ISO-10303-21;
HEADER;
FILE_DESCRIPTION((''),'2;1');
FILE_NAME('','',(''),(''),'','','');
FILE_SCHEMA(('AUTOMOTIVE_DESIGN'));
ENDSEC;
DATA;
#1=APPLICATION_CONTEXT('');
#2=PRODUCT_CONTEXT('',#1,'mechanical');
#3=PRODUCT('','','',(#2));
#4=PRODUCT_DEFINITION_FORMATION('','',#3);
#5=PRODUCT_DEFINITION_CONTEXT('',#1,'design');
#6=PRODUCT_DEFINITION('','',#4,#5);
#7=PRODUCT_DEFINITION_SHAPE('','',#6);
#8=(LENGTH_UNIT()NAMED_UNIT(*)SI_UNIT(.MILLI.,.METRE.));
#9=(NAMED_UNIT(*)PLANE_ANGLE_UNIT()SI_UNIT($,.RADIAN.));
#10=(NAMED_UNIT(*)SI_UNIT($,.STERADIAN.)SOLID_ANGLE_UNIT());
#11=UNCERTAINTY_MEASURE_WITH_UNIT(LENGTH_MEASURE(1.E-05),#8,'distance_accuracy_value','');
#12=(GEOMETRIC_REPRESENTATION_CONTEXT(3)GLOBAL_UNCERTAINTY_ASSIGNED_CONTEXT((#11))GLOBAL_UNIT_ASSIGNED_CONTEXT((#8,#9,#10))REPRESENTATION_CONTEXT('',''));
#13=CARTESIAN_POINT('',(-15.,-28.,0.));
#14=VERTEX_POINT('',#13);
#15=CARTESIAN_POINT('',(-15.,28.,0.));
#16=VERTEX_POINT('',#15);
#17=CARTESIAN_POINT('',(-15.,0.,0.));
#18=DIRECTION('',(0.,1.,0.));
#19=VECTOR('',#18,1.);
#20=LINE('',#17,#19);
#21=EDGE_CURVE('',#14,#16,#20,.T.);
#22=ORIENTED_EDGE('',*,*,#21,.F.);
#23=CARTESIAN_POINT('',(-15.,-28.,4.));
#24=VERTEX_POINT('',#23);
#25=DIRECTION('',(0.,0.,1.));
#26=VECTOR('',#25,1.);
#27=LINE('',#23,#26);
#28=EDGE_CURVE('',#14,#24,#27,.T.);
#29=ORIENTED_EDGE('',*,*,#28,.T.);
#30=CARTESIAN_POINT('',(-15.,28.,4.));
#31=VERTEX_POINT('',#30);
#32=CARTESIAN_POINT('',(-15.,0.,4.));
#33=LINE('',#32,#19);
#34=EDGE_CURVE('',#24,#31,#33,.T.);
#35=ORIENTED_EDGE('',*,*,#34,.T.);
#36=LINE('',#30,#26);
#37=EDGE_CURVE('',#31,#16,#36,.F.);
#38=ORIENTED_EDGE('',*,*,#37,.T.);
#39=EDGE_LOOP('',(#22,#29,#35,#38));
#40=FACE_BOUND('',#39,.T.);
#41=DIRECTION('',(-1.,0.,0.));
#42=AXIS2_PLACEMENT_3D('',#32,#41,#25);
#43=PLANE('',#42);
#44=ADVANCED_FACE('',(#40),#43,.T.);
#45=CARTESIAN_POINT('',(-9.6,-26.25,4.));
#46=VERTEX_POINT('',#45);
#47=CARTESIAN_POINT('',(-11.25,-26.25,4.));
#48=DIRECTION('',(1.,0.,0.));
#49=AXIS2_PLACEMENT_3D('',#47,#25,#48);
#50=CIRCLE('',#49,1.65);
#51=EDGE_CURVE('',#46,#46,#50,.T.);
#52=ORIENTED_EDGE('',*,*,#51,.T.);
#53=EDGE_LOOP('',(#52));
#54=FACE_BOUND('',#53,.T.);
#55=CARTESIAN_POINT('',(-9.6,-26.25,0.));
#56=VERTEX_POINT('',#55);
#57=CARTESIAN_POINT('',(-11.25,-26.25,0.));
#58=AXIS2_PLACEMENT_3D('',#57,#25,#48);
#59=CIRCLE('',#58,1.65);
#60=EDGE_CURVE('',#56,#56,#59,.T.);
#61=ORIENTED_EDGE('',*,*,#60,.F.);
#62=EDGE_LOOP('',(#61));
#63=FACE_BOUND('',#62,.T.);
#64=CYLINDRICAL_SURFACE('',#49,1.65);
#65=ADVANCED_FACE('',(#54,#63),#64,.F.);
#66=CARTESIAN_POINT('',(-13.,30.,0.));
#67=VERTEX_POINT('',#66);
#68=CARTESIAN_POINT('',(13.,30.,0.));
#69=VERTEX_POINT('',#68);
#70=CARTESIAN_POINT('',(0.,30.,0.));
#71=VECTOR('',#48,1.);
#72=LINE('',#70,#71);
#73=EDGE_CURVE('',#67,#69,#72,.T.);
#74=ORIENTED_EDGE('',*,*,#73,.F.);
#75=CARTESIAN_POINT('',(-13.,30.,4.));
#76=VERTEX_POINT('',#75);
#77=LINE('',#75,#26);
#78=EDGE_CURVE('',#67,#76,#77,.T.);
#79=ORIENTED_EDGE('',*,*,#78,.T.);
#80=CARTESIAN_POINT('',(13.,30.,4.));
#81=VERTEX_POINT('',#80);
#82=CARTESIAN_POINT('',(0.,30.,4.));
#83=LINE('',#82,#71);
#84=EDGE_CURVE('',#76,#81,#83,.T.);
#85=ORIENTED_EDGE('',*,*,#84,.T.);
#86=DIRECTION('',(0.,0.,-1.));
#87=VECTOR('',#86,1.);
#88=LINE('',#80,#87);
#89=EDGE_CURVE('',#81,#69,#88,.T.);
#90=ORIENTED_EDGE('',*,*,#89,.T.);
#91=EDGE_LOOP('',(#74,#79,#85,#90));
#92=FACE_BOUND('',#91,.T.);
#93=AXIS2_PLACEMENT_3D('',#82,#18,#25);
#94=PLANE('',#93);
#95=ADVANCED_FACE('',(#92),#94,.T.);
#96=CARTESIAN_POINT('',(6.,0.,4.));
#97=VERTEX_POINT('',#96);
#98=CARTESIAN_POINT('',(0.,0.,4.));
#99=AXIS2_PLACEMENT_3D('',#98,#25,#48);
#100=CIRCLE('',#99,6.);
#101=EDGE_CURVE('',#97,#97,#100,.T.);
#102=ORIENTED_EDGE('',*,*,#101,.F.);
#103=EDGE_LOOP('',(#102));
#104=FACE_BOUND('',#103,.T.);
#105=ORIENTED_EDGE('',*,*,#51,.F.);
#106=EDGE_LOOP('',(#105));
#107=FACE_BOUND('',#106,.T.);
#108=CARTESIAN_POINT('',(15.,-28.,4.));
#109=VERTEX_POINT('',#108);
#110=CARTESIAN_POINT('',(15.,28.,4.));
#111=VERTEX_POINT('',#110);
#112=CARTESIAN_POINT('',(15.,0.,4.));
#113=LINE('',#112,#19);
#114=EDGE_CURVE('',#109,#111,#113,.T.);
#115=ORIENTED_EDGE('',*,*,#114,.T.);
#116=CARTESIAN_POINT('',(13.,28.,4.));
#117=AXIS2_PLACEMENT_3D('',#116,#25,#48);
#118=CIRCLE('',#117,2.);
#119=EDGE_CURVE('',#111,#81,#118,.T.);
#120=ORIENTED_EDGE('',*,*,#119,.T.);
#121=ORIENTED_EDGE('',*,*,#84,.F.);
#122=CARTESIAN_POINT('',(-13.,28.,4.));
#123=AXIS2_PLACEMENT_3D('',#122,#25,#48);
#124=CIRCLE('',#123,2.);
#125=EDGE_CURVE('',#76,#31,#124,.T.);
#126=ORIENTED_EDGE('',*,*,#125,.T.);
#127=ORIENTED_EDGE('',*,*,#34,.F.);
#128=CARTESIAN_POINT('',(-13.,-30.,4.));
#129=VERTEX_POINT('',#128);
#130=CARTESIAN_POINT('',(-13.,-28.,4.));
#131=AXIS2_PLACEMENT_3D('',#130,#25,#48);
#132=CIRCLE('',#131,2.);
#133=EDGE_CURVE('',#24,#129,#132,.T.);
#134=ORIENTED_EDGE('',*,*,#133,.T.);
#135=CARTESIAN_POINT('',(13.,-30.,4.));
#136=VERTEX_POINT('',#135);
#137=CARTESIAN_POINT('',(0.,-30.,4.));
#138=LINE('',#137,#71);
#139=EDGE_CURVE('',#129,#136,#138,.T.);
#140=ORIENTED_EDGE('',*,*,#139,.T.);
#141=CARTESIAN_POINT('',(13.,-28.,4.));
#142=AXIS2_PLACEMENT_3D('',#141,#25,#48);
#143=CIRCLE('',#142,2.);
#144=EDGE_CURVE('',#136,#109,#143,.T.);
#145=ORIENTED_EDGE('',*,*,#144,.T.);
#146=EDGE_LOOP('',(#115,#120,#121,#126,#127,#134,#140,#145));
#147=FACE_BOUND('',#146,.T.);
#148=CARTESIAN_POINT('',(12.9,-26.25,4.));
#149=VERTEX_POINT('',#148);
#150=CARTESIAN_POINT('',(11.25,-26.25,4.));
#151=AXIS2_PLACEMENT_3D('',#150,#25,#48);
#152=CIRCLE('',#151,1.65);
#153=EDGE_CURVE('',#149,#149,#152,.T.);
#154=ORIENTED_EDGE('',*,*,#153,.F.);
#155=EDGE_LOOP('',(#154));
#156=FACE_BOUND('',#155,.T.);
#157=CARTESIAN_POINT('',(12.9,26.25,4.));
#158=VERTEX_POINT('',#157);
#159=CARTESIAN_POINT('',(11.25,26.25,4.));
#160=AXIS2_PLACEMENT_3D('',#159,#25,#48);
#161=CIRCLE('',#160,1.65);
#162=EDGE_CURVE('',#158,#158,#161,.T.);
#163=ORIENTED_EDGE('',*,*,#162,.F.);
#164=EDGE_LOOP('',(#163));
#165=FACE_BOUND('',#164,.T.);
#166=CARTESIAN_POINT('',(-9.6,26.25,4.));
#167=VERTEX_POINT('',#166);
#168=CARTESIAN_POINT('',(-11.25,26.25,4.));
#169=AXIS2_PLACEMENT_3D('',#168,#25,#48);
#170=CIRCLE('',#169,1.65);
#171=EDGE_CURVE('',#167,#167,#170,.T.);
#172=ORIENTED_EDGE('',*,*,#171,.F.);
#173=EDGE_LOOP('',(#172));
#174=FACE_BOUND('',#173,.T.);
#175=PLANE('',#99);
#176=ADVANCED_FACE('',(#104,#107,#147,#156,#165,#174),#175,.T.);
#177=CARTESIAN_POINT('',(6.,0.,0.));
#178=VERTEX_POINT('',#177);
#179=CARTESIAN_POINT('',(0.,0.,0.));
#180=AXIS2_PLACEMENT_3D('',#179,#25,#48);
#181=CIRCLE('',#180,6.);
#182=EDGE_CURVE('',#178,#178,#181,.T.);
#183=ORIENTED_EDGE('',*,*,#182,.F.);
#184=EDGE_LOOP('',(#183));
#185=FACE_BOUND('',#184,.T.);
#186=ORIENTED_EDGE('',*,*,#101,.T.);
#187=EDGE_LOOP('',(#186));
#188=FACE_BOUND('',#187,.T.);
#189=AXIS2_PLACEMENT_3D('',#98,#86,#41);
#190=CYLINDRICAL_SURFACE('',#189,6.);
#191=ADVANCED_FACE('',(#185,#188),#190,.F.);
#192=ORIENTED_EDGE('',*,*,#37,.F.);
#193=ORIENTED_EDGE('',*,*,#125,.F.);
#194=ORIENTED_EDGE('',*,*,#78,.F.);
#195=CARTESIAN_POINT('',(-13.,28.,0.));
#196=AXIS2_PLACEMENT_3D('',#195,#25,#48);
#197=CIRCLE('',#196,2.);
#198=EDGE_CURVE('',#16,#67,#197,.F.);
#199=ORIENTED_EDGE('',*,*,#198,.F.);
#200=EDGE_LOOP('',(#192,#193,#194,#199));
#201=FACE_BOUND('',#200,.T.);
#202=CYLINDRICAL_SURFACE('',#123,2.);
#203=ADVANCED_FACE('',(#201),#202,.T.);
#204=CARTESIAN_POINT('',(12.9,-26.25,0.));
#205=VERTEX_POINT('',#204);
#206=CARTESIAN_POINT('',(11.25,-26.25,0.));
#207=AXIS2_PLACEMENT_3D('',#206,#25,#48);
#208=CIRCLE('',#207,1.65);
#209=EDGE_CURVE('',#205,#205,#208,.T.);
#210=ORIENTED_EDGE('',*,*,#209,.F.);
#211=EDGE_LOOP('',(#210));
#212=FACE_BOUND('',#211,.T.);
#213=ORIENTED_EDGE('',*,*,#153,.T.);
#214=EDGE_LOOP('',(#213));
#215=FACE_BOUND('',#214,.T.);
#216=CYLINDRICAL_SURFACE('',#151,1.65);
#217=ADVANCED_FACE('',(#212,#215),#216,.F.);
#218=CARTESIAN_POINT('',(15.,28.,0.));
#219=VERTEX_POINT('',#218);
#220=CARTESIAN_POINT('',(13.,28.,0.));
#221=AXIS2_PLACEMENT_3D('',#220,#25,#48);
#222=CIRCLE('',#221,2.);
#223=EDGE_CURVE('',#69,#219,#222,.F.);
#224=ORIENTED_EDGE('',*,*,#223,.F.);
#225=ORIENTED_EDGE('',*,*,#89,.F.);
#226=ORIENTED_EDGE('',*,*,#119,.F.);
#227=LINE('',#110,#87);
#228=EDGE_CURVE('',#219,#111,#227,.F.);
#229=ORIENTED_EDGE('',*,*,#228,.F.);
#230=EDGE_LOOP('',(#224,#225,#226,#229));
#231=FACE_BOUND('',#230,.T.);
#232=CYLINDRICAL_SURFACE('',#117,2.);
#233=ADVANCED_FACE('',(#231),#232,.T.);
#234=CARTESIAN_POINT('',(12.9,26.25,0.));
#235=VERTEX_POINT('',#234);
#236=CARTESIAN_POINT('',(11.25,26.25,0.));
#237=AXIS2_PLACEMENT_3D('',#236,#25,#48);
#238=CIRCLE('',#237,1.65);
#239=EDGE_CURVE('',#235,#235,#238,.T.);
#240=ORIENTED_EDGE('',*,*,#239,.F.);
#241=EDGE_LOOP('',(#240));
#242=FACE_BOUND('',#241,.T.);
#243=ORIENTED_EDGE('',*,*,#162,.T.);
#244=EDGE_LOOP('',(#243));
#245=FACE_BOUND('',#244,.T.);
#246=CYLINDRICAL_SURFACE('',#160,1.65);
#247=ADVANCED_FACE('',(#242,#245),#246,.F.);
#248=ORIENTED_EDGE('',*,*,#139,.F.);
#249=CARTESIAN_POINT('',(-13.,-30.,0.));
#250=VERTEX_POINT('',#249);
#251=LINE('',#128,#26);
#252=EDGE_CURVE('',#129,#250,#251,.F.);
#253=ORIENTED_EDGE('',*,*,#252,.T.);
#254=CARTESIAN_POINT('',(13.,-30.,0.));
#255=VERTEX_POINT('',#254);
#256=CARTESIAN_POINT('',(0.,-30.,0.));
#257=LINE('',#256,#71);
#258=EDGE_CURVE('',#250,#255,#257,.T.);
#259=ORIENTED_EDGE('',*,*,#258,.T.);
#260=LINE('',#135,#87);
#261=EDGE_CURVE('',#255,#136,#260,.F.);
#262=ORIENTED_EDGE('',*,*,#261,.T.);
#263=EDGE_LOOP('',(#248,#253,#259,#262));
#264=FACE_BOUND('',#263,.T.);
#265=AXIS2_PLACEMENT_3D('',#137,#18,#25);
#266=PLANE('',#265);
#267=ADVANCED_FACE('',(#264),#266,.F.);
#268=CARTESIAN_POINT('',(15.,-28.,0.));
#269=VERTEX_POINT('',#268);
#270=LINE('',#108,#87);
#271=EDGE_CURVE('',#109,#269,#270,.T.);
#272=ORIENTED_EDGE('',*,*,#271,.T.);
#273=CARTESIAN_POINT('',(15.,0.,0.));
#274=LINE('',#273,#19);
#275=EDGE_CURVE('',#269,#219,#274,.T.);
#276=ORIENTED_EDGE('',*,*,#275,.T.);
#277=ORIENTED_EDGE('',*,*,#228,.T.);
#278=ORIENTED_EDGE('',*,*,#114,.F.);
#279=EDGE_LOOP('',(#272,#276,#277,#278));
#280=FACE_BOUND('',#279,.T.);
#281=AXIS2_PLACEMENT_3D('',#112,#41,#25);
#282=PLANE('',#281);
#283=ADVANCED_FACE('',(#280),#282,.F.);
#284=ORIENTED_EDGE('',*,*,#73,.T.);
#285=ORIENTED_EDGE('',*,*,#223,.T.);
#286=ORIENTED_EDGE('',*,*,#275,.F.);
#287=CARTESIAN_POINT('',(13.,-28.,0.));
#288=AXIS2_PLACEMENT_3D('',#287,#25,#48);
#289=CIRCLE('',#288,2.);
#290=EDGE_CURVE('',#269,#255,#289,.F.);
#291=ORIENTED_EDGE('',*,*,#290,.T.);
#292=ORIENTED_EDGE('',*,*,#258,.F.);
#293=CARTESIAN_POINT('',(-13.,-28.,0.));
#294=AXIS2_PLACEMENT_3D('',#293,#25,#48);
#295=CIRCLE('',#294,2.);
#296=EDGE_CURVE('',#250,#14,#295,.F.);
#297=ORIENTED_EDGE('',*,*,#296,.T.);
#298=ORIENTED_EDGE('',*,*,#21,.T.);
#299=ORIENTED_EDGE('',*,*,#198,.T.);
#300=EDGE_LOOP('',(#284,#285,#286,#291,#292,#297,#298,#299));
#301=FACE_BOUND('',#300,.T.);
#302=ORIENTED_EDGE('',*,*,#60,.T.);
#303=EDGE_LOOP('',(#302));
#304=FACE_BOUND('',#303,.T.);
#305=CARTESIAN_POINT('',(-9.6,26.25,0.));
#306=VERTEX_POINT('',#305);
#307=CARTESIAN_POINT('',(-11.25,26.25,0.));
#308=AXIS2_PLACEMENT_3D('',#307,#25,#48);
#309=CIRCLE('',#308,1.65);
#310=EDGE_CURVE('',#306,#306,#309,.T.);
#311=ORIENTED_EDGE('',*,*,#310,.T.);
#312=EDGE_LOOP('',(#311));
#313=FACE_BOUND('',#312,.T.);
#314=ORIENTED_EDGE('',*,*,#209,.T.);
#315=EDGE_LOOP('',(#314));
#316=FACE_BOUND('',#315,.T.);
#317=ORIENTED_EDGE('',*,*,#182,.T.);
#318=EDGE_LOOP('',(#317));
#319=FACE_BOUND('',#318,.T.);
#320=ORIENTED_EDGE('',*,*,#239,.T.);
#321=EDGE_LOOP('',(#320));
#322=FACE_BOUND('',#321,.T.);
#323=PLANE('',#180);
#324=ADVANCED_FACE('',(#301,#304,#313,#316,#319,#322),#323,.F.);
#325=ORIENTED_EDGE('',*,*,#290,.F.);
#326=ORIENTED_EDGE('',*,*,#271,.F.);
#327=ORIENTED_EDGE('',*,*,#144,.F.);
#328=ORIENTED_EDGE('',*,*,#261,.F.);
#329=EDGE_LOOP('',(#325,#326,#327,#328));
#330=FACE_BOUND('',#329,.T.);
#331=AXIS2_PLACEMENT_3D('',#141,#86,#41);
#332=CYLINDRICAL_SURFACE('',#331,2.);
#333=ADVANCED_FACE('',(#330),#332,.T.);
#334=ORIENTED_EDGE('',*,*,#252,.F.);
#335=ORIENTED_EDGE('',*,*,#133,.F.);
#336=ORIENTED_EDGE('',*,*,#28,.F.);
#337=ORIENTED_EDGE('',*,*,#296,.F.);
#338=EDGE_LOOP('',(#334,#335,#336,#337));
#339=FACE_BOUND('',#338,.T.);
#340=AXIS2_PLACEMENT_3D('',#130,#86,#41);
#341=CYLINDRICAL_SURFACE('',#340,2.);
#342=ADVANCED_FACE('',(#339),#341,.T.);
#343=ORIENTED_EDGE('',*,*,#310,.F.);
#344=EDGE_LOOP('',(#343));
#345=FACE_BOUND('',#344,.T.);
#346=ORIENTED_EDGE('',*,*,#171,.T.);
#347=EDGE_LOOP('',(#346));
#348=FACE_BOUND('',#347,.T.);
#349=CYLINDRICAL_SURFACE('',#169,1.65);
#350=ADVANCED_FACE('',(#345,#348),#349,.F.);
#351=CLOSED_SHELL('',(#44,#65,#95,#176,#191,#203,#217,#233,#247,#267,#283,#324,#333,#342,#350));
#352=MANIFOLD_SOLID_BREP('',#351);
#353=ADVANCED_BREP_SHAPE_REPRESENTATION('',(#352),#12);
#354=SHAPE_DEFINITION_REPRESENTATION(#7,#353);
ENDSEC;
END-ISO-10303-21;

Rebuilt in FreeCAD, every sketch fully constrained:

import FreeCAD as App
import Part
import Sketcher

V = App.Vector
Q = App.Units.Quantity


def edges_at(feature, points):
    """Names of the edges that pass closest to the given points."""
    edges = feature.Shape.Edges
    near = lambda p: min(range(len(edges)), key=lambda i: edges[i].distToShape(Part.Vertex(*p))[0])
    return sorted({f"Edge{near(p) + 1}" for p in points})

doc = App.newDocument("Part")
params = doc.addObject("Spreadsheet::Sheet", "Params")
for row, (alias, value) in enumerate([
    ("sketch1_diameter", "12 mm"),
    ("sketch1_width", "30 mm"),
    ("sketch1_height", "60 mm"),
    ("pad1_length", "4 mm"),
    ("fillet_radius", "2 mm"),
    ("fillet2_radius", "2 mm"),
    ("fillet3_radius", "2 mm"),
    ("fillet4_radius", "2 mm"),
    ("sketch2_diameter", "3.3 mm"),
    ("hole_diameter", "3.3 mm"),
], start=1):
    params.set(f"A{row}", alias)
    params.set(f"B{row}", "=" + value)
    params.setAlias(f"B{row}", alias)

body = doc.addObject("PartDesign::Body", "Body")

# Sketch on XY plane
sketch1 = body.newObject("Sketcher::SketchObject", "Sketch")
sketch1.AttachmentSupport = (doc.getObject("XY_Plane"), [""])
sketch1.MapMode = "FlatFace"
sketch1.addGeometry([
    Part.LineSegment(V(-15, -30, 0), V(15, -30, 0)),  # 0
    Part.LineSegment(V(15, -30, 0), V(15, 30, 0)),  # 1
    Part.LineSegment(V(15, 30, 0), V(-15, 30, 0)),  # 2
    Part.LineSegment(V(-15, 30, 0), V(-15, -30, 0)),  # 3
    Part.Circle(V(0, 0, 0), V(0, 0, 1), 6),  # 4
], False)
sketch1.addConstraint([
    Sketcher.Constraint("Coincident", 0, 2, 1, 1),
    Sketcher.Constraint("Coincident", 1, 2, 2, 1),
    Sketcher.Constraint("Coincident", 2, 2, 3, 1),
    Sketcher.Constraint("Coincident", 3, 2, 0, 1),
    Sketcher.Constraint("Horizontal", 0),
    Sketcher.Constraint("Vertical", 1),
    Sketcher.Constraint("Horizontal", 2),
    Sketcher.Constraint("Vertical", 3),
    Sketcher.Constraint("Coincident", 4, 3, -1, 1),
    Sketcher.Constraint("Symmetric", 0, 2, 2, 2, -1, 1),
    Sketcher.Constraint("Diameter", 4, Q("12 mm")),
    Sketcher.Constraint("DistanceX", 0, 1, 0, 2, Q("30 mm")),
    Sketcher.Constraint("DistanceY", 1, 1, 1, 2, Q("60 mm")),
])
sketch1.setExpression("Constraints[10]", "Params.sketch1_diameter")
sketch1.setExpression("Constraints[11]", "Params.sketch1_width")
sketch1.setExpression("Constraints[12]", "Params.sketch1_height")
pad1 = body.newObject("PartDesign::Pad", "Pad")
pad1.Profile = sketch1
pad1.setExpression("Length", "Params.pad1_length")
doc.recompute()

fillet = body.newObject("PartDesign::Fillet", "Fillet")
fillet.Base = (pad1, edges_at(pad1, [(15, 30, 2)]))
fillet.setExpression("Radius", "Params.fillet_radius")
doc.recompute()

fillet2 = body.newObject("PartDesign::Fillet", "Fillet001")
fillet2.Base = (fillet, edges_at(fillet, [(15, -30, 2)]))
fillet2.setExpression("Radius", "Params.fillet2_radius")
doc.recompute()

fillet3 = body.newObject("PartDesign::Fillet", "Fillet002")
fillet3.Base = (fillet2, edges_at(fillet2, [(-15, 30, 2)]))
fillet3.setExpression("Radius", "Params.fillet3_radius")
doc.recompute()

fillet4 = body.newObject("PartDesign::Fillet", "Fillet003")
fillet4.Base = (fillet3, edges_at(fillet3, [(-15, -30, 2)]))
fillet4.setExpression("Radius", "Params.fillet4_radius")

# Sketch on XY plane
sketch2 = body.newObject("Sketcher::SketchObject", "Sketch001")
sketch2.AttachmentSupport = (doc.getObject("XY_Plane"), [""])
sketch2.MapMode = "FlatFace"
sketch2.AttachmentOffset = App.Placement(V(0, 0, 4), App.Rotation())
sketch2.addGeometry([
    Part.Circle(V(-11.25, 26.25, 0), V(0, 0, 1), 1.65),
    Part.Circle(V(11.25, 26.25, 0), V(0, 0, 1), 1.65),
    Part.Circle(V(11.25, -26.25, 0), V(0, 0, 1), 1.65),
    Part.Circle(V(-11.25, -26.25, 0), V(0, 0, 1), 1.65),
], False)
sketch2.addConstraint([
    Sketcher.Constraint("Equal", 0, 1),
    Sketcher.Constraint("Equal", 1, 2),
    Sketcher.Constraint("Equal", 2, 3),
    Sketcher.Constraint("Symmetric", 0, 3, 2, 3, -1, 1),
    Sketcher.Constraint("Symmetric", 1, 3, 3, 3, -1, 1),
    Sketcher.Constraint("Symmetric", 0, 3, 1, 3, -2),
    Sketcher.Constraint("Diameter", 0, Q("3.3 mm")),
    Sketcher.Constraint("DistanceX", 0, 3, 1, 3, Q("22.5 mm")),
    Sketcher.Constraint("DistanceY", 2, 3, 1, 3, Q("52.5 mm")),
])
sketch2.setExpression("Constraints[6]", "Params.sketch2_diameter")
doc.recompute()
hole = body.newObject("PartDesign::Hole", "Hole")
hole.Profile = sketch2
hole.ThreadType = "None"
hole.setExpression("Diameter", "Params.hole_diameter")
hole.DepthType = "ThroughAll"

doc.recompute()
